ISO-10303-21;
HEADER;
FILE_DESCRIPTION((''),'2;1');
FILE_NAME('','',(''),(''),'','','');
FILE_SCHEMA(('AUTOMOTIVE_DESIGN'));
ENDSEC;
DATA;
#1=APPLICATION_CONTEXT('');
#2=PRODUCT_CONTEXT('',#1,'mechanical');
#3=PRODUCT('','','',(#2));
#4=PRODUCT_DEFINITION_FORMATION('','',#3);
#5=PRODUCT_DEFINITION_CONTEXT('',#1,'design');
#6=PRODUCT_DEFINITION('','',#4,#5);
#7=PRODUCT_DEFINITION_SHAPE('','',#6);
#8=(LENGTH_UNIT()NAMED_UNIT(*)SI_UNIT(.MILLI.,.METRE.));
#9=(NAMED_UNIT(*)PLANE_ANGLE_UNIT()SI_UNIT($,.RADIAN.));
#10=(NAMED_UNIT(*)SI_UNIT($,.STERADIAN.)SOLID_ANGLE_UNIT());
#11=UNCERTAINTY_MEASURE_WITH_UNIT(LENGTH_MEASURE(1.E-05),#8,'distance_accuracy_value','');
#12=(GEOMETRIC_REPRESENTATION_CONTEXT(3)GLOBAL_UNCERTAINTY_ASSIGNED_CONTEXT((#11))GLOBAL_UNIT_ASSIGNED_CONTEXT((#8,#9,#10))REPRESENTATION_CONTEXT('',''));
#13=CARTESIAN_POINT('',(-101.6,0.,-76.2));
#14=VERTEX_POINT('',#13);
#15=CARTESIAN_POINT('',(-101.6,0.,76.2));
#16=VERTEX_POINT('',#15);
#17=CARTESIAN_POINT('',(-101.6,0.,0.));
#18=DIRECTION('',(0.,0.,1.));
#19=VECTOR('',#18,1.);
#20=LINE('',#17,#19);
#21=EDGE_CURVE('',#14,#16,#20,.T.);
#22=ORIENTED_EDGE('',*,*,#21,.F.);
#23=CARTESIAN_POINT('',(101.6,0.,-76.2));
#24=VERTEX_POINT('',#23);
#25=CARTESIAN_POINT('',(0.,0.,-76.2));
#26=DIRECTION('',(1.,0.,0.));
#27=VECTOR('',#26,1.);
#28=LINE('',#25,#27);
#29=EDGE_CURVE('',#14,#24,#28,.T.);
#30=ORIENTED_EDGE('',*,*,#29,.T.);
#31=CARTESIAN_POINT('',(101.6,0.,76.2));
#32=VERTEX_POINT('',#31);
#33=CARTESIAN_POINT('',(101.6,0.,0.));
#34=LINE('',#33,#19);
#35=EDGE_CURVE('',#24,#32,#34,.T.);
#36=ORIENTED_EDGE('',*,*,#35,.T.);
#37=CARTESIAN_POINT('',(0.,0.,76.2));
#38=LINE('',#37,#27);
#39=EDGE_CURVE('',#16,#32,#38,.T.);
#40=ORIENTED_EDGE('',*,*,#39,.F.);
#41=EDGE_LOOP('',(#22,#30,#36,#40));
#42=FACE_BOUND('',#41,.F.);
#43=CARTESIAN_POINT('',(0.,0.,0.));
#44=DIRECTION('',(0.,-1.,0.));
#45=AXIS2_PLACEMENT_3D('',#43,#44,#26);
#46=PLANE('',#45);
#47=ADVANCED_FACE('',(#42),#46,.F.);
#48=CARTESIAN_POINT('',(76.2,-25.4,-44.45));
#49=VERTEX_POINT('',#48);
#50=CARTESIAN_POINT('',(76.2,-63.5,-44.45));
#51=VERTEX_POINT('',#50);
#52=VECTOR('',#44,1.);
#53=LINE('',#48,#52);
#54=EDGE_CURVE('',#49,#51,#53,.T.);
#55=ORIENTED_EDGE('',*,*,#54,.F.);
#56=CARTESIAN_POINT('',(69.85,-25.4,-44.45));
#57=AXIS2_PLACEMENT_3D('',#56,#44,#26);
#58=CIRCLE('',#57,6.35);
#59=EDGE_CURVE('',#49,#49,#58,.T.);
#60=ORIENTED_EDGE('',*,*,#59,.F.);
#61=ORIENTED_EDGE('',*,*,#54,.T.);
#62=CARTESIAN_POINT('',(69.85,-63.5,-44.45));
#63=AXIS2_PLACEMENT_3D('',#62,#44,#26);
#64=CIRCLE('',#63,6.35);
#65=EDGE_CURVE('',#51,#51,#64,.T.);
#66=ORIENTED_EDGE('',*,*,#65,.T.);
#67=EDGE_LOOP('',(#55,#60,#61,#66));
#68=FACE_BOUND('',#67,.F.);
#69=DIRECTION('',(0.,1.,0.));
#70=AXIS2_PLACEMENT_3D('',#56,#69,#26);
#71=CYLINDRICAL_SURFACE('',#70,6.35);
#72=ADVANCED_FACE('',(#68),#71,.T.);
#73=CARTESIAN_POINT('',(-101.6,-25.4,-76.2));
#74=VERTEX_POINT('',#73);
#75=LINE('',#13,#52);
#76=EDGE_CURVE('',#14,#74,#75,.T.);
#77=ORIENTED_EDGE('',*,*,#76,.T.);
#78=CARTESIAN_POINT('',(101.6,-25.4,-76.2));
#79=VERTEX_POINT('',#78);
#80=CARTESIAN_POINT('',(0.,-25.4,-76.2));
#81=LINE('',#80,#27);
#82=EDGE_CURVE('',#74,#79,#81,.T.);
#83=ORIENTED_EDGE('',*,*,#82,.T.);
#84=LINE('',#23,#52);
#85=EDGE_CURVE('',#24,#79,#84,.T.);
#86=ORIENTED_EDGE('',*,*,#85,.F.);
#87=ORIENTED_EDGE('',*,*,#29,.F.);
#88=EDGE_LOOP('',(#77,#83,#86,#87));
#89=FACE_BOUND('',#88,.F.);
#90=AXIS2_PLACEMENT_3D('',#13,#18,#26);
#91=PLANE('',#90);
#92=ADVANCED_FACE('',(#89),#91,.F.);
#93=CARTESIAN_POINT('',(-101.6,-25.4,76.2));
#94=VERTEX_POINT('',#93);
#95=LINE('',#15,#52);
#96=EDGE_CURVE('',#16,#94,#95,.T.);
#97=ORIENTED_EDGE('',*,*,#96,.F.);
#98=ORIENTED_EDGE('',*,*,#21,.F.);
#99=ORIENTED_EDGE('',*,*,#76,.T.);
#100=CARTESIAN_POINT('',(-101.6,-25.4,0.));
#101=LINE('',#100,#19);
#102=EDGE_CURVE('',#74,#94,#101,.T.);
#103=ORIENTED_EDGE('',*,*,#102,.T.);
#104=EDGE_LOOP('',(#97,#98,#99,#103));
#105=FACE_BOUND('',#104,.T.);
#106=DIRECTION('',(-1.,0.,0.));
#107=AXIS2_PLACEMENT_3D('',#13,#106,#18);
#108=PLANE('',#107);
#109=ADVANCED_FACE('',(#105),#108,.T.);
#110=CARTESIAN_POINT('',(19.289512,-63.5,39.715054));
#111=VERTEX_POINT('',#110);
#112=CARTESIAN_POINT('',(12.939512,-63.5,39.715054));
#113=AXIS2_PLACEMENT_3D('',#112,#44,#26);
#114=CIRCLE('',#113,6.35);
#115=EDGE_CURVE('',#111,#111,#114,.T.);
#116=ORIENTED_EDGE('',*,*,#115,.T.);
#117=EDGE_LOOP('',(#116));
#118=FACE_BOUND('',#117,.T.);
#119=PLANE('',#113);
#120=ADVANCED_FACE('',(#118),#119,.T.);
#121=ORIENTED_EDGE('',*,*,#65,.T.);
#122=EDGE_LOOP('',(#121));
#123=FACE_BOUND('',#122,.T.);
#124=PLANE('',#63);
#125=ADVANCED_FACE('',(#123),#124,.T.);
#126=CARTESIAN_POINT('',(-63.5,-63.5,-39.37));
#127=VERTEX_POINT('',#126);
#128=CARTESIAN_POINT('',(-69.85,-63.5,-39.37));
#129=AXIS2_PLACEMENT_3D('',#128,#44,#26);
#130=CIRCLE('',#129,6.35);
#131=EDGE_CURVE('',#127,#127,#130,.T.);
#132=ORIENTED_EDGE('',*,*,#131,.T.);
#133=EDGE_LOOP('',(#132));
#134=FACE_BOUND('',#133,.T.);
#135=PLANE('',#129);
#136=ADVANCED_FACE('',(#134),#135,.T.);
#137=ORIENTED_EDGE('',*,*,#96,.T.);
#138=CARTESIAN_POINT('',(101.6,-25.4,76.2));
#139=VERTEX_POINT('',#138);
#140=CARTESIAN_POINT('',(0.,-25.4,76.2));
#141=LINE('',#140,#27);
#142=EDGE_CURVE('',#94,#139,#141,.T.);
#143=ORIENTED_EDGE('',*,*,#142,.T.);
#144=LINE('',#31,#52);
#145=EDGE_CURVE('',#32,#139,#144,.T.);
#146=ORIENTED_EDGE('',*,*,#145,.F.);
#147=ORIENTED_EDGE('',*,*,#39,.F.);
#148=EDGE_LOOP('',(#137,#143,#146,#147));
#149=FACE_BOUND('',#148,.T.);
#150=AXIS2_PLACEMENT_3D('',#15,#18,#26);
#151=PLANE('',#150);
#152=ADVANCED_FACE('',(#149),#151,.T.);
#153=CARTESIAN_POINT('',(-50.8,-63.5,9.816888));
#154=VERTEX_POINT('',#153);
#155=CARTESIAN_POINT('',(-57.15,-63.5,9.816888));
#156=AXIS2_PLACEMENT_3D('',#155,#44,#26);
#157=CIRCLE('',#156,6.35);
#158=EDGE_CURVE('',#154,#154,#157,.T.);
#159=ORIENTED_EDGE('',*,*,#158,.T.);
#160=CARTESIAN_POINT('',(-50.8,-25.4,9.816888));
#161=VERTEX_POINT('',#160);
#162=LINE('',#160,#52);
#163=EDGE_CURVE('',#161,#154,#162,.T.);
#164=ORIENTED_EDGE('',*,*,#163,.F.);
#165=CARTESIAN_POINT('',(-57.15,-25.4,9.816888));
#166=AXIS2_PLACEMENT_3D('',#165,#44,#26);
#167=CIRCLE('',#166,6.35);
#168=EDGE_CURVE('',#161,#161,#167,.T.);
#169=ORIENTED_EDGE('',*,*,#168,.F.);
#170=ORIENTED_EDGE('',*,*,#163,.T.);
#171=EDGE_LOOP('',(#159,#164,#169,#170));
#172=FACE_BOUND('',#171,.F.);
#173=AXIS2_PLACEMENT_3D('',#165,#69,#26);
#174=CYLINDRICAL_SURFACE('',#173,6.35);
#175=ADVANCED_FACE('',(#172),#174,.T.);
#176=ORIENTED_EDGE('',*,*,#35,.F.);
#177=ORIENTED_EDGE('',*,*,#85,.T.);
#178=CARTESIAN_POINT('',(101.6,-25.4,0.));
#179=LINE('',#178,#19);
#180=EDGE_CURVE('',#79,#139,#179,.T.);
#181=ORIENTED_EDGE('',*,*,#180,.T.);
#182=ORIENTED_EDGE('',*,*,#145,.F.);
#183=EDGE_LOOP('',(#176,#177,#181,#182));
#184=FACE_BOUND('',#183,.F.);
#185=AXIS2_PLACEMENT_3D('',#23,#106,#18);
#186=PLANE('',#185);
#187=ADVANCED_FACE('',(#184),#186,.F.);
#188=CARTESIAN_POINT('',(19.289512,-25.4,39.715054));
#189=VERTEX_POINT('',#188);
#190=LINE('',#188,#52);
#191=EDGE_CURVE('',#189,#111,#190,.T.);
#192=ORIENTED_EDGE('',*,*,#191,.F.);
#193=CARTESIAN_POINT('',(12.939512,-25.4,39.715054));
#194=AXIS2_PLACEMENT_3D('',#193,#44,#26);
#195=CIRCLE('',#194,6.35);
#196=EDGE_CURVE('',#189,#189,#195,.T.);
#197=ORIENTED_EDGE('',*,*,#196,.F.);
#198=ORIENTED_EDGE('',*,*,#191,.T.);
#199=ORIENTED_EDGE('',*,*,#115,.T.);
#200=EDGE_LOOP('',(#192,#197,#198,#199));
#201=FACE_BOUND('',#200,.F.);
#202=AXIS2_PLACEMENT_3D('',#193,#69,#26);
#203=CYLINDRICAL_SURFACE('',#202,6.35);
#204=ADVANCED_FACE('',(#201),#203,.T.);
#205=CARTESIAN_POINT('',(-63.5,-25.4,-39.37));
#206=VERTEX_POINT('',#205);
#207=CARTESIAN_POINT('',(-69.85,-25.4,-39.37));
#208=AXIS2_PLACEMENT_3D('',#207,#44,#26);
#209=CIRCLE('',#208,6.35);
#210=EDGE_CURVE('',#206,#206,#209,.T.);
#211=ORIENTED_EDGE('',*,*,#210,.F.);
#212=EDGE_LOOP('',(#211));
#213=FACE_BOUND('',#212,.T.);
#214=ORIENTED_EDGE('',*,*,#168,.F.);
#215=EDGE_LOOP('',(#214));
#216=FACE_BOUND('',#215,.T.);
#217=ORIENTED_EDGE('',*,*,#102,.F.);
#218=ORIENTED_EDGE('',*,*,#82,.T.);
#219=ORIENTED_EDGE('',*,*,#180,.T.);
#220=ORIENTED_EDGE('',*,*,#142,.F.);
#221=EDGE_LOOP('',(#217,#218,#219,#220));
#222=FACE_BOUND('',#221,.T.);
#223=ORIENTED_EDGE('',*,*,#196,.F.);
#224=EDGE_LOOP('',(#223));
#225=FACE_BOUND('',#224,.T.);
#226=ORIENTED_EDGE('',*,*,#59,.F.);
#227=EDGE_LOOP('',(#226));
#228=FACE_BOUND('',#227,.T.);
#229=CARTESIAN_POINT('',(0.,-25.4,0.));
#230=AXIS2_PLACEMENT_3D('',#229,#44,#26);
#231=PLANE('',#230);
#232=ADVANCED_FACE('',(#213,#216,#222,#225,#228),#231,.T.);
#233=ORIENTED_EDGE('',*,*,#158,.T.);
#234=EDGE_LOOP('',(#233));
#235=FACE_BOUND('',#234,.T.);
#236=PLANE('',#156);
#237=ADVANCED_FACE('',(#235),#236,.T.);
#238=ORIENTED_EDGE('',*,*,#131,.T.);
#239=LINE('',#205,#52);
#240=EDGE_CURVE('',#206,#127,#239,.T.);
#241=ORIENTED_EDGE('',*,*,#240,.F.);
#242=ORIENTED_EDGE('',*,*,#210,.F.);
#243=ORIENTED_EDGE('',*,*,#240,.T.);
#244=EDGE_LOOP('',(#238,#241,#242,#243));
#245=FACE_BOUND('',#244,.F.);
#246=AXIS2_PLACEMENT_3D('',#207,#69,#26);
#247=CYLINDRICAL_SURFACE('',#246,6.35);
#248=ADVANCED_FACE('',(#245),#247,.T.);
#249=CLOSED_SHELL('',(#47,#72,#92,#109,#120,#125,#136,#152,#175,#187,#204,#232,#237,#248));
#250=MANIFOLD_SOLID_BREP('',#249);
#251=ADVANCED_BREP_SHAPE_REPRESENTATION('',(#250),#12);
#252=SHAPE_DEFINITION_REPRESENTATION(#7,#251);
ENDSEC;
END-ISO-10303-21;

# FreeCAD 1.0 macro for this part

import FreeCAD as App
import Part
import Sketcher

V = App.Vector
Q = App.Units.Quantity


def add_polygon(sketch, points):
    """Adds a closed chain of lines whose ends are joined by coincident constraints."""
    first, n = sketch.GeometryCount, len(points)
    for a, b in zip(points, points[1:] + points[:1]):
        sketch.addGeometry(Part.LineSegment(App.Vector(*a, 0), App.Vector(*b, 0)), False)
    for i in range(n):
        sketch.addConstraint(Sketcher.Constraint("Coincident", first + i, 2, first + (i + 1) % n, 1))

doc = App.newDocument("Part")
body = doc.addObject("PartDesign::Body", "Body")

# Sketch on XZ plane
sketch1 = doc.addObject("Sketcher::SketchObject", "Sketch")
body.addObject(sketch1)
sketch1.AttachmentSupport = (doc.XZ_Plane, [""])
sketch1.MapMode = "FlatFace"
add_polygon(sketch1, [(-102, 76), (-102, -76), (102, -76), (102, 76)])  # lines 0-3
sketch1.addConstraint([
    Sketcher.Constraint("Vertical", 0),
    Sketcher.Constraint("Horizontal", 1),
    Sketcher.Constraint("Vertical", 2),
    Sketcher.Constraint("Horizontal", 3),
    Sketcher.Constraint("Symmetric", 0, 2, 2, 2, -1, 1),
    Sketcher.Constraint("DistanceX", 1, 1, 1, 2, Q("8 in")),
    Sketcher.Constraint("DistanceY", 0, 2, 0, 1, Q("6 in")),
])
pad1 = doc.addObject("PartDesign::Pad", "Pad")
body.addObject(pad1)
pad1.Profile = sketch1
pad1.Length = Q("1 in")

# Sketch on XZ plane
sketch2 = doc.addObject("Sketcher::SketchObject", "Sketch001")
body.addObject(sketch2)
sketch2.AttachmentSupport = (doc.XZ_Plane, [""])
sketch2.MapMode = "FlatFace"
sketch2.AttachmentOffset = App.Placement(V(0, 0, 1 * 25.4), App.Rotation())
sketch2.addGeometry([
    Part.Circle(V(13, 40, 0), V(0, 0, 1), 6),
    Part.Circle(V(-57, 10, 0), V(0, 0, 1), 6),
    Part.Circle(V(-70, -39, 0), V(0, 0, 1), 6),
    Part.Circle(V(70, -44, 0), V(0, 0, 1), 6),
], False)
sketch2.addConstraint([
    Sketcher.Constraint("Equal", 0, 1),
    Sketcher.Constraint("Equal", 1, 2),
    Sketcher.Constraint("Equal", 2, 3),
    Sketcher.Constraint("Diameter", 0, Q("0.5 in")),
    Sketcher.Constraint("DistanceX", 1, 3, 3, 3, Q("5 in")),
    Sketcher.Constraint("DistanceX", 2, 3, 1, 3, Q("0.5 in")),
    Sketcher.Constraint("DistanceY", 3, 3, 2, 3, Q("0.2 in")),
    Sketcher.Constraint("DistanceX", 1, 3, -1, 1, Q("2.25 in")),
    Sketcher.Constraint("DistanceY", 2, 3, -1, 1, Q("1.55 in")),
    Sketcher.Constraint("DistanceX", 1, 3, 0, 3, Q("70.089512 mm")),
    Sketcher.Constraint("DistanceY", 3, 3, 1, 3, Q("54.266888 mm")),
    Sketcher.Constraint("DistanceY", -1, 1, 0, 3, Q("39.715054 mm")),
])
pad2 = doc.addObject("PartDesign::Pad", "Pad001")
body.addObject(pad2)
pad2.Profile = sketch2
pad2.Length = Q("1.5 in")

doc.recompute()
